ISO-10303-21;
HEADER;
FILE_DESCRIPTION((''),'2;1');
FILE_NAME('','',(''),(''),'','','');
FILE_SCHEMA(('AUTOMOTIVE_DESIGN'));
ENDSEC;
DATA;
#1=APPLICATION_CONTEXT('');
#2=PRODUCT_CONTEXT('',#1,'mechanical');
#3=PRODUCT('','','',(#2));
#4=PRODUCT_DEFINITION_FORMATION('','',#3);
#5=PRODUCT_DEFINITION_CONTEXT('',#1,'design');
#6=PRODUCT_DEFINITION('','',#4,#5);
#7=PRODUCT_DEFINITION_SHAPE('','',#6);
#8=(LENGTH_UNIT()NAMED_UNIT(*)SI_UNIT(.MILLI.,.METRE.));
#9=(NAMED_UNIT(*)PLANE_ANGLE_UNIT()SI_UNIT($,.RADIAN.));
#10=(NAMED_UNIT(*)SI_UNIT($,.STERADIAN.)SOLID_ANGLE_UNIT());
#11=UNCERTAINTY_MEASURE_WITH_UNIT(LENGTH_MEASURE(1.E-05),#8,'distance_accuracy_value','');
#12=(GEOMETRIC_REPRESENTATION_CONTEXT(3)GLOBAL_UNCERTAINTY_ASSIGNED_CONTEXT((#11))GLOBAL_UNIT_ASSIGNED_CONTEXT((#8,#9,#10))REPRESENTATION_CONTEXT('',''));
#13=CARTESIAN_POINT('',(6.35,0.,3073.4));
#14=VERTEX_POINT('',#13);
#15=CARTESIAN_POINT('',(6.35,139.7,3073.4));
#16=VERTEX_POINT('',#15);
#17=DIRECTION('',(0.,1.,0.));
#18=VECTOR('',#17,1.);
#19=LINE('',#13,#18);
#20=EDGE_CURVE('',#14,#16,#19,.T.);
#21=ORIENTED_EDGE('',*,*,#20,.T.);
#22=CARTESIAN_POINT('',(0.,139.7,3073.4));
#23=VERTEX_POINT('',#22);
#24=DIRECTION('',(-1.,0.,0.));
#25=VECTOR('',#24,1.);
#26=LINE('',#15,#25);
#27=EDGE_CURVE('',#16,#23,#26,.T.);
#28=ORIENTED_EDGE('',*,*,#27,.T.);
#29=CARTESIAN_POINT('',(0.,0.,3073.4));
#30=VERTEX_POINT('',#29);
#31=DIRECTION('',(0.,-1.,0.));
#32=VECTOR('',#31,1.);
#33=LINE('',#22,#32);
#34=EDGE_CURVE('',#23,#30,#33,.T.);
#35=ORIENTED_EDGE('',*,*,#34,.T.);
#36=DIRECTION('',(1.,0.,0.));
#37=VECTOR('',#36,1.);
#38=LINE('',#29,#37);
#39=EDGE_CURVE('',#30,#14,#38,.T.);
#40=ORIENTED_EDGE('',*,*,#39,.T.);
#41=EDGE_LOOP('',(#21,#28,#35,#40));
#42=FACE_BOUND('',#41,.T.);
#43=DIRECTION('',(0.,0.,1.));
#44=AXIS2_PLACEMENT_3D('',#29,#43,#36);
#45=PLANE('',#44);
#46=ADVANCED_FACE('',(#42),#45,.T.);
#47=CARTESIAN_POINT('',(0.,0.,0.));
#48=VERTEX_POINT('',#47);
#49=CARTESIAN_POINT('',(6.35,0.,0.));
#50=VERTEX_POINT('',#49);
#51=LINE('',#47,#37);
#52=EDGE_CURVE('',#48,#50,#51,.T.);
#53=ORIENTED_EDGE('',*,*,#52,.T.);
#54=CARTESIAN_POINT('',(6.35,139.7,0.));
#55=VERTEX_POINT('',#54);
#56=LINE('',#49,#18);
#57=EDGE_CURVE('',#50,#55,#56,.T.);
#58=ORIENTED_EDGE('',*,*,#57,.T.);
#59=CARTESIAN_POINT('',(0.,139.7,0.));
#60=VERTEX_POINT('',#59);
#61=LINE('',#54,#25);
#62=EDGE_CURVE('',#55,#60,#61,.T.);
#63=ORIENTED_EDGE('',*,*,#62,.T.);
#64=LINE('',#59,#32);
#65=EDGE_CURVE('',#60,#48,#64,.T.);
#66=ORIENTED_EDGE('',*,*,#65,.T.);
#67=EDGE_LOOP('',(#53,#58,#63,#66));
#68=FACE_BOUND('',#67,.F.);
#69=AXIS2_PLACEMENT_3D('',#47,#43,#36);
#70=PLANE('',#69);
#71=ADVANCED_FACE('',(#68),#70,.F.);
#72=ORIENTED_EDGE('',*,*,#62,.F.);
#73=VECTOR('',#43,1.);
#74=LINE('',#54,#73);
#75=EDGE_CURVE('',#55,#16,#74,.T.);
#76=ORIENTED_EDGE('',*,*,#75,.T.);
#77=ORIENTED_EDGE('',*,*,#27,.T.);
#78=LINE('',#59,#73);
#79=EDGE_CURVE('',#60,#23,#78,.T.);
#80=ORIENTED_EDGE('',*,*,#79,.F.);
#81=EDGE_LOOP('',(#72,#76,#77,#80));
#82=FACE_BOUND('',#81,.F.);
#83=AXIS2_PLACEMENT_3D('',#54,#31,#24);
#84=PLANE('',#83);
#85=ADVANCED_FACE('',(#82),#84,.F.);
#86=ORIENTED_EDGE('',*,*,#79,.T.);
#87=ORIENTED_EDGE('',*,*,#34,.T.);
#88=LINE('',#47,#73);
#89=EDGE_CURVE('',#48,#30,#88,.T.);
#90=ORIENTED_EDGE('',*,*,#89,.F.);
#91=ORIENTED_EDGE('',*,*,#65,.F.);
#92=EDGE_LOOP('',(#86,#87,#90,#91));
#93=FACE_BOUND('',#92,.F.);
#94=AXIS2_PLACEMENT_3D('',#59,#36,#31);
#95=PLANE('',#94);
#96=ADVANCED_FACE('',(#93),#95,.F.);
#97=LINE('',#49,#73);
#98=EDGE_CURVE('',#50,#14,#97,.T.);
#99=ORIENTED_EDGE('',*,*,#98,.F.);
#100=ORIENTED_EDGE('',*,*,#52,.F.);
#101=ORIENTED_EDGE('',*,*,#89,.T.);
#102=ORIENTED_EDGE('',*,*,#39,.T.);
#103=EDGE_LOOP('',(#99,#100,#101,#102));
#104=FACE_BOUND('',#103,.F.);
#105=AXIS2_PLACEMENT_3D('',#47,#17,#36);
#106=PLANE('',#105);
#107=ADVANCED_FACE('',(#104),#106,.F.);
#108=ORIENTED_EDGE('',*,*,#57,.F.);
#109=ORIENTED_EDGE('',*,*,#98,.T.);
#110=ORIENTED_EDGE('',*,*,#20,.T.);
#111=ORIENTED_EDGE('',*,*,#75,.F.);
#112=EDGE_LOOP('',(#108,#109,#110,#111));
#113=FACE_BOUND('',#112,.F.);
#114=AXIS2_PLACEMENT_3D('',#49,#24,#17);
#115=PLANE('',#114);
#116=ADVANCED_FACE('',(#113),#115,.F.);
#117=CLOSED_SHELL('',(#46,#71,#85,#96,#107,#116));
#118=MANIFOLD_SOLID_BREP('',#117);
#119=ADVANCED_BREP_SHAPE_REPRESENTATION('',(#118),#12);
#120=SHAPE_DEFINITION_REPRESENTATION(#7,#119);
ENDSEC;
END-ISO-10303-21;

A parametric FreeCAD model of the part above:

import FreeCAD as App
import Part
import Sketcher
Q = App.Units.Quantity


def add_polygon(sketch, points):
    """Adds a closed chain of lines whose ends are joined by coincident constraints."""
    first, n = sketch.GeometryCount, len(points)
    for a, b in zip(points, points[1:] + points[:1]):
        sketch.addGeometry(Part.LineSegment(App.Vector(*a, 0), App.Vector(*b, 0)), False)
    for i in range(n):
        sketch.addConstraint(Sketcher.Constraint("Coincident", first + i, 2, first + (i + 1) % n, 1))

doc = App.newDocument("Part")
params = doc.addObject("Spreadsheet::Sheet", "Params")
for row, (alias, value) in enumerate([
    ("sketch1_height", "5.5 in"),
    ("sketch1_width", "0.25 in"),
    ("pad1_length", "121 in"),
], start=1):
    params.set(f"A{row}", alias)
    params.set(f"B{row}", "=" + value)
    params.setAlias(f"B{row}", alias)

body = doc.addObject("PartDesign::Body", "Body")

sketch1 = body.newObject("Sketcher::SketchObject", "Sketch")
sketch1.AttachmentSupport = (doc.getObject("XY_Plane"), [""])
sketch1.MapMode = "FlatFace"
add_polygon(sketch1, [(0, 140), (0, 0), (6, 0), (6, 140)])
sketch1.addConstraint(Sketcher.Constraint("Vertical", 0))
sketch1.addConstraint(Sketcher.Constraint("Horizontal", 1))
sketch1.addConstraint(Sketcher.Constraint("Vertical", 2))
sketch1.addConstraint(Sketcher.Constraint("Horizontal", 3))
sketch1.addConstraint(Sketcher.Constraint("Coincident", 0, 2, -1, 1))
sketch1.addConstraint(Sketcher.Constraint("DistanceY", 0, 2, 0, 1, Q("5.5 in")))
sketch1.addConstraint(Sketcher.Constraint("DistanceX", 1, 1, 1, 2, Q("0.25 in")))
sketch1.setExpression("Constraints[9]", "Params.sketch1_height")
sketch1.setExpression("Constraints[10]", "Params.sketch1_width")
pad1 = body.newObject("PartDesign::Pad", "Pad")
pad1.Profile = sketch1
pad1.setExpression("Length", "Params.pad1_length")

doc.recompute()
